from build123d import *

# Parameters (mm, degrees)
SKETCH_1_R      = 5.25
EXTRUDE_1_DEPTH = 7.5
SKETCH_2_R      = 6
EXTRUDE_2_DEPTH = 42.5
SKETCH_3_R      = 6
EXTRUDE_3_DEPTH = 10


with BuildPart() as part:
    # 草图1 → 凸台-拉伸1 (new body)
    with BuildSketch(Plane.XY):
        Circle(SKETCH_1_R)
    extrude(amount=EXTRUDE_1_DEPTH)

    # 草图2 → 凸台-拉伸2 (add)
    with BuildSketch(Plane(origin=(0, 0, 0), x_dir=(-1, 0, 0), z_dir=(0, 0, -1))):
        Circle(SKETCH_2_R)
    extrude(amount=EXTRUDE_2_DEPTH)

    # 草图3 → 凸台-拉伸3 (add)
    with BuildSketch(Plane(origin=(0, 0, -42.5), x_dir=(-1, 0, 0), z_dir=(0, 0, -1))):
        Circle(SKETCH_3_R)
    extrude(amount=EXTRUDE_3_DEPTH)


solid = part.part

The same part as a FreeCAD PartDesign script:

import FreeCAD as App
import Part
import Sketcher
from FreeCAD import Vector
Q = App.Units.Quantity

doc = App.newDocument("Part")
body = doc.addObject("PartDesign::Body", "Body")

# Sketch on XY plane
sketch1 = body.newObject("Sketcher::SketchObject", "Sketch")
sketch1.AttachmentSupport = (doc.getObject("XY_Plane"), [""])
sketch1.MapMode = "FlatFace"
sketch1.addGeometry(Part.Circle(Vector(0, 0, 0), Vector(0, 0, 1), 5), False)
sketch1.addConstraint([
    Sketcher.Constraint("Coincident", 0, 3, -1, 1),
    Sketcher.Constraint("Diameter", 0, Q("10.5 mm")),
])
pad1 = body.newObject("PartDesign::Pad", "Pad")
pad1.Profile = sketch1
pad1.Length = 7.5

# Sketch on XY plane
sketch2 = body.newObject("Sketcher::SketchObject", "Sketch001")
sketch2.AttachmentSupport = (doc.getObject("XY_Plane"), [""])
sketch2.MapMode = "FlatFace"
sketch2.addGeometry(Part.Circle(Vector(0, 0, 0), Vector(0, 0, 1), 6), False)
sketch2.addConstraint([
    Sketcher.Constraint("Coincident", 0, 3, -1, 1),
    Sketcher.Constraint("Diameter", 0, Q("12 mm")),
])
pad2 = body.newObject("PartDesign::Pad", "Pad001")
pad2.Profile = sketch2
pad2.Length = 42.5
pad2.Reversed = True

# Sketch on XY plane
sketch3 = body.newObject("Sketcher::SketchObject", "Sketch002")
sketch3.AttachmentSupport = (doc.getObject("XY_Plane"), [""])
sketch3.MapMode = "FlatFace"
sketch3.AttachmentOffset = App.Placement(Vector(0, 0, -42.5), App.Rotation())
sketch3.addGeometry(Part.Circle(Vector(0, 0, 0), Vector(0, 0, 1), 6), False)
sketch3.addConstraint([
    Sketcher.Constraint("Coincident", 0, 3, -1, 1),
    Sketcher.Constraint("Diameter", 0, Q("12 mm")),
])
pad3 = body.newObject("PartDesign::Pad", "Pad002")
pad3.Profile = sketch3
pad3.Length = 10
pad3.Reversed = True

doc.recompute()
